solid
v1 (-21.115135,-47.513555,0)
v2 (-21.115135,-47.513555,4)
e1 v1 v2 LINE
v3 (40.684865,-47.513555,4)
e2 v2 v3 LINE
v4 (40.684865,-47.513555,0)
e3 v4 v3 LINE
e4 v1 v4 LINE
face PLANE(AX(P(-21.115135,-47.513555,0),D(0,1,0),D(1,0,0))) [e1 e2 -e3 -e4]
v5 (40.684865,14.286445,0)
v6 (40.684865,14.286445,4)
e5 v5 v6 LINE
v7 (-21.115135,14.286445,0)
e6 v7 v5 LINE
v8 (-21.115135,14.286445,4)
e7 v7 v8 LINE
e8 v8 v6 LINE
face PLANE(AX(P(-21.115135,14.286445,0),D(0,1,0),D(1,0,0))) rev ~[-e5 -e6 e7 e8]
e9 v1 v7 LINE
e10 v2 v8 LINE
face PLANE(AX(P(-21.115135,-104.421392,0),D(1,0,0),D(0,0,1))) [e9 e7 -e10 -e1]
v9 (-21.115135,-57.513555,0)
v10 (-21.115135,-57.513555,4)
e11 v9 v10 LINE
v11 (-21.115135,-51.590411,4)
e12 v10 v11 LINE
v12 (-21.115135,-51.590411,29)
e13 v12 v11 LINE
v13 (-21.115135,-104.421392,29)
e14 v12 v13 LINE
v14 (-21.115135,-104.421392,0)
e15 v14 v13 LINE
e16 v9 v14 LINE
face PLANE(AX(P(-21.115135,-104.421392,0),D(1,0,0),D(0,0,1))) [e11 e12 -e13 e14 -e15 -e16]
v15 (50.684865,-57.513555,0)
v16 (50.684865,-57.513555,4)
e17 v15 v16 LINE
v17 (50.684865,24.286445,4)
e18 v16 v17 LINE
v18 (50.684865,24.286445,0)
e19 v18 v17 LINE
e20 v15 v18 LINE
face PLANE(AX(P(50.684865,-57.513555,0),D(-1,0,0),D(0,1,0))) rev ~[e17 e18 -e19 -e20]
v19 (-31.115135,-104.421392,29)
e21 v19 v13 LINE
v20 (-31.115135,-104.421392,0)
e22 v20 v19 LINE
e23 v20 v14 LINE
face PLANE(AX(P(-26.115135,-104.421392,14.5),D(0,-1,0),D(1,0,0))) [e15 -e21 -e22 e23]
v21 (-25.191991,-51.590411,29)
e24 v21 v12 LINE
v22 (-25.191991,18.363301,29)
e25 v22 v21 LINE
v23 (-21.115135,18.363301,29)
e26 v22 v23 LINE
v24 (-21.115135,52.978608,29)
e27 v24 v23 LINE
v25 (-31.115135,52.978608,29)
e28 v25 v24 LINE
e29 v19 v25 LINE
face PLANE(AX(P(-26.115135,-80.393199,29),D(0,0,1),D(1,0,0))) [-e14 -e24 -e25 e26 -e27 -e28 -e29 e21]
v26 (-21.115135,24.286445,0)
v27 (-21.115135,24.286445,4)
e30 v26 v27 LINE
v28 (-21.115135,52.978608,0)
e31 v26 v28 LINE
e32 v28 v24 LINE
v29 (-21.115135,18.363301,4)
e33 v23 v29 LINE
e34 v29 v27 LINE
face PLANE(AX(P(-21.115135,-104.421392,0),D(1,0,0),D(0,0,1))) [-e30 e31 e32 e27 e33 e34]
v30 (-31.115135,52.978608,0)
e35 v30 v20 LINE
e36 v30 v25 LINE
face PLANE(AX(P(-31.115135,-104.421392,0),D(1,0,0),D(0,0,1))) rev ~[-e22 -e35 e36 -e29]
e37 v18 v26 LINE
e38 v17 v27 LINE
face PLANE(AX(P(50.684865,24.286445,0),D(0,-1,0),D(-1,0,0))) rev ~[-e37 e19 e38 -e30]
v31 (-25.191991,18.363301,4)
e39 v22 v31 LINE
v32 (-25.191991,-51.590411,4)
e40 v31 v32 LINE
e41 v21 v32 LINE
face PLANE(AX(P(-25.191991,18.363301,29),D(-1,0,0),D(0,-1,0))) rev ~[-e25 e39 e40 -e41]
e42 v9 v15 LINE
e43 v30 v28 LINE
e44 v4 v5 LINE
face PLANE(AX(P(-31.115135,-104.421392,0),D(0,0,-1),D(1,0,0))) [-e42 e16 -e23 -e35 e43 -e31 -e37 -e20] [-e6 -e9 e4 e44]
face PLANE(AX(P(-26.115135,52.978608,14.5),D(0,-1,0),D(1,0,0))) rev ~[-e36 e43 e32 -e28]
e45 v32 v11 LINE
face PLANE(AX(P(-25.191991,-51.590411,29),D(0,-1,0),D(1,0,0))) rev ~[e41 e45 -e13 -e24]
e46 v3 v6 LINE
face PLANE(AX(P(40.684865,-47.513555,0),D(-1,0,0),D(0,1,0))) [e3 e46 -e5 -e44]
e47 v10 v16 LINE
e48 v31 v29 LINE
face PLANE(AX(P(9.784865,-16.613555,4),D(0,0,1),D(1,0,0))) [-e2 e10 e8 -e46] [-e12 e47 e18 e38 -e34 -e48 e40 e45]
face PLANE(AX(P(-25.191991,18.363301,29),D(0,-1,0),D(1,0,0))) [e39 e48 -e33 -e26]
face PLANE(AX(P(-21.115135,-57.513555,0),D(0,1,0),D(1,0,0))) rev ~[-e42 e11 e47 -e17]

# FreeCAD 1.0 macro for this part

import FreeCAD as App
import Part
import Sketcher


def add_polygon(sketch, points):
    """Adds a closed chain of lines whose ends are joined by coincident constraints."""
    first, n = sketch.GeometryCount, len(points)
    for a, b in zip(points, points[1:] + points[:1]):
        sketch.addGeometry(Part.LineSegment(App.Vector(*a, 0), App.Vector(*b, 0)), False)
    for i in range(n):
        sketch.addConstraint(Sketcher.Constraint("Coincident", first + i, 2, first + (i + 1) % n, 1))

doc = App.newDocument("Part")
body = doc.addObject("PartDesign::Body", "Body")

# Sketch on XY plane
sketch1 = body.newObject("Sketcher::SketchObject", "Sketch")
sketch1.AttachmentSupport = (doc.getObject("XY_Plane"), [""])
sketch1.MapMode = "FlatFace"
add_polygon(sketch1, [(51, -58), (51, 24), (-31, 24), (-31, -104), (-21, -104), (-21, -58)])  # lines 0-5
add_polygon(sketch1, [(41, -48), (-21, -48), (-21, 14), (41, 14)])  # lines 6-9
sketch1.addConstraint([
    Sketcher.Constraint("Vertical", 0),
    Sketcher.Constraint("Horizontal", 1),
    Sketcher.Constraint("Vertical", 2),
    Sketcher.Constraint("Horizontal", 3),
    Sketcher.Constraint("Vertical", 4),
    Sketcher.Constraint("Horizontal", 5),
    Sketcher.Constraint("Horizontal", 6),
    Sketcher.Constraint("Vertical", 7),
    Sketcher.Constraint("Horizontal", 8),
    Sketcher.Constraint("Vertical", 9),
    Sketcher.Constraint("Vertical", 4, 2, 6, 2),
    Sketcher.Constraint("Equal", 1, 0),
    Sketcher.Constraint("Equal", 8, 7),
    Sketcher.Constraint("DistanceX", 3, 1, 3, 2, 10.0),
    Sketcher.Constraint("DistanceX", 1, 2, 1, 1, 81.8),
    Sketcher.Constraint("DistanceX", 6, 2, 6, 1, 61.8),
    Sketcher.Constraint("DistanceY", 4, 2, 6, 2, 10.0),
    Sketcher.Constraint("DistanceY", 2, 2, 2, 1, 128.707836),
    Sketcher.Constraint("DistanceY", 2, 2, -1, 1, 104.421391),
    Sketcher.Constraint("DistanceX", -1, 1, 0, 2, 50.684865),
])
pad1 = body.newObject("PartDesign::Pad", "Pad")
pad1.Profile = sketch1
pad1.Length = 4

# Sketch on XY plane
sketch2 = body.newObject("Sketcher::SketchObject", "Sketch001")
sketch2.AttachmentSupport = (doc.getObject("XY_Plane"), [""])
sketch2.MapMode = "FlatFace"
sketch2.AttachmentOffset = App.Placement(App.Vector(0, 0, 4), App.Rotation())
add_polygon(sketch2, [(-31, -56), (-31, -104), (-21, -104), (-21, -56)])  # lines 0-3
sketch2.addConstraint([
    Sketcher.Constraint("Vertical", 0),
    Sketcher.Constraint("Horizontal", 1),
    Sketcher.Constraint("Vertical", 2),
    Sketcher.Constraint("Horizontal", 3),
    Sketcher.Constraint("DistanceX", 1, 1, 1, 2, 10.0),
    Sketcher.Constraint("DistanceY", 0, 2, 0, 1, 48.056386),
    Sketcher.Constraint("DistanceY", 0, 2, -1, 1, 104.421392),
    Sketcher.Constraint("DistanceX", 0, 2, -1, 1, 31.115135),
])
pad2 = body.newObject("PartDesign::Pad", "Pad001")
pad2.Profile = sketch2
pad2.Length = 25

# Sketch on XZ plane
sketch3 = body.newObject("Sketcher::SketchObject", "Sketch002")
sketch3.AttachmentSupport = (doc.getObject("XZ_Plane"), [""])
sketch3.MapMode = "FlatFace"
sketch3.AttachmentOffset = App.Placement(App.Vector(0, 0, 104.421392), App.Rotation())
add_polygon(sketch3, [(-31, 29), (-31, 0), (-21, 0), (-21, 29)])  # lines 0-3
sketch3.addConstraint([
    Sketcher.Constraint("Vertical", 0),
    Sketcher.Constraint("Horizontal", 1),
    Sketcher.Constraint("Vertical", 2),
    Sketcher.Constraint("Horizontal", 3),
    Sketcher.Constraint("PointOnObject", 0, 2, -1),
    Sketcher.Constraint("DistanceX", 1, 1, 1, 2, 10.0),
    Sketcher.Constraint("DistanceY", 0, 2, 0, 1, 29.0),
    Sketcher.Constraint("DistanceX", 0, 2, -1, 1, 31.115135),
])
pad3 = body.newObject("PartDesign::Pad", "Pad002")
pad3.Profile = sketch3
pad3.Length = 157.4
pad3.Reversed = True

# Sketch on XY plane
sketch4 = body.newObject("Sketcher::SketchObject", "Sketch003")
sketch4.AttachmentSupport = (doc.getObject("XY_Plane"), [""])
sketch4.MapMode = "FlatFace"
sketch4.AttachmentOffset = App.Placement(App.Vector(0, 0, 29), App.Rotation())
add_polygon(sketch4, [(-21.1, 18.4), (-25.2, 18.4), (-25.2, -51.6), (-21.1, -51.6)])  # lines 0-3
sketch4.addConstraint([
    Sketcher.Constraint("Horizontal", 0),
    Sketcher.Constraint("Vertical", 1),
    Sketcher.Constraint("Horizontal", 2),
    Sketcher.Constraint("Vertical", 3),
    Sketcher.Constraint("DistanceY", 1, 2, 1, 1, 69.953712),
    Sketcher.Constraint("DistanceY", -1, 1, 0, 2, 18.363301),
    Sketcher.Constraint("DistanceX", 0, 2, 0, 1, 4.076856),
    Sketcher.Constraint("DistanceX", 0, 2, -1, 1, 25.191991),
])
pocket1 = body.newObject("PartDesign::Pocket", "Pocket")
pocket1.Profile = sketch4
pocket1.Length = 25

doc.recompute()
